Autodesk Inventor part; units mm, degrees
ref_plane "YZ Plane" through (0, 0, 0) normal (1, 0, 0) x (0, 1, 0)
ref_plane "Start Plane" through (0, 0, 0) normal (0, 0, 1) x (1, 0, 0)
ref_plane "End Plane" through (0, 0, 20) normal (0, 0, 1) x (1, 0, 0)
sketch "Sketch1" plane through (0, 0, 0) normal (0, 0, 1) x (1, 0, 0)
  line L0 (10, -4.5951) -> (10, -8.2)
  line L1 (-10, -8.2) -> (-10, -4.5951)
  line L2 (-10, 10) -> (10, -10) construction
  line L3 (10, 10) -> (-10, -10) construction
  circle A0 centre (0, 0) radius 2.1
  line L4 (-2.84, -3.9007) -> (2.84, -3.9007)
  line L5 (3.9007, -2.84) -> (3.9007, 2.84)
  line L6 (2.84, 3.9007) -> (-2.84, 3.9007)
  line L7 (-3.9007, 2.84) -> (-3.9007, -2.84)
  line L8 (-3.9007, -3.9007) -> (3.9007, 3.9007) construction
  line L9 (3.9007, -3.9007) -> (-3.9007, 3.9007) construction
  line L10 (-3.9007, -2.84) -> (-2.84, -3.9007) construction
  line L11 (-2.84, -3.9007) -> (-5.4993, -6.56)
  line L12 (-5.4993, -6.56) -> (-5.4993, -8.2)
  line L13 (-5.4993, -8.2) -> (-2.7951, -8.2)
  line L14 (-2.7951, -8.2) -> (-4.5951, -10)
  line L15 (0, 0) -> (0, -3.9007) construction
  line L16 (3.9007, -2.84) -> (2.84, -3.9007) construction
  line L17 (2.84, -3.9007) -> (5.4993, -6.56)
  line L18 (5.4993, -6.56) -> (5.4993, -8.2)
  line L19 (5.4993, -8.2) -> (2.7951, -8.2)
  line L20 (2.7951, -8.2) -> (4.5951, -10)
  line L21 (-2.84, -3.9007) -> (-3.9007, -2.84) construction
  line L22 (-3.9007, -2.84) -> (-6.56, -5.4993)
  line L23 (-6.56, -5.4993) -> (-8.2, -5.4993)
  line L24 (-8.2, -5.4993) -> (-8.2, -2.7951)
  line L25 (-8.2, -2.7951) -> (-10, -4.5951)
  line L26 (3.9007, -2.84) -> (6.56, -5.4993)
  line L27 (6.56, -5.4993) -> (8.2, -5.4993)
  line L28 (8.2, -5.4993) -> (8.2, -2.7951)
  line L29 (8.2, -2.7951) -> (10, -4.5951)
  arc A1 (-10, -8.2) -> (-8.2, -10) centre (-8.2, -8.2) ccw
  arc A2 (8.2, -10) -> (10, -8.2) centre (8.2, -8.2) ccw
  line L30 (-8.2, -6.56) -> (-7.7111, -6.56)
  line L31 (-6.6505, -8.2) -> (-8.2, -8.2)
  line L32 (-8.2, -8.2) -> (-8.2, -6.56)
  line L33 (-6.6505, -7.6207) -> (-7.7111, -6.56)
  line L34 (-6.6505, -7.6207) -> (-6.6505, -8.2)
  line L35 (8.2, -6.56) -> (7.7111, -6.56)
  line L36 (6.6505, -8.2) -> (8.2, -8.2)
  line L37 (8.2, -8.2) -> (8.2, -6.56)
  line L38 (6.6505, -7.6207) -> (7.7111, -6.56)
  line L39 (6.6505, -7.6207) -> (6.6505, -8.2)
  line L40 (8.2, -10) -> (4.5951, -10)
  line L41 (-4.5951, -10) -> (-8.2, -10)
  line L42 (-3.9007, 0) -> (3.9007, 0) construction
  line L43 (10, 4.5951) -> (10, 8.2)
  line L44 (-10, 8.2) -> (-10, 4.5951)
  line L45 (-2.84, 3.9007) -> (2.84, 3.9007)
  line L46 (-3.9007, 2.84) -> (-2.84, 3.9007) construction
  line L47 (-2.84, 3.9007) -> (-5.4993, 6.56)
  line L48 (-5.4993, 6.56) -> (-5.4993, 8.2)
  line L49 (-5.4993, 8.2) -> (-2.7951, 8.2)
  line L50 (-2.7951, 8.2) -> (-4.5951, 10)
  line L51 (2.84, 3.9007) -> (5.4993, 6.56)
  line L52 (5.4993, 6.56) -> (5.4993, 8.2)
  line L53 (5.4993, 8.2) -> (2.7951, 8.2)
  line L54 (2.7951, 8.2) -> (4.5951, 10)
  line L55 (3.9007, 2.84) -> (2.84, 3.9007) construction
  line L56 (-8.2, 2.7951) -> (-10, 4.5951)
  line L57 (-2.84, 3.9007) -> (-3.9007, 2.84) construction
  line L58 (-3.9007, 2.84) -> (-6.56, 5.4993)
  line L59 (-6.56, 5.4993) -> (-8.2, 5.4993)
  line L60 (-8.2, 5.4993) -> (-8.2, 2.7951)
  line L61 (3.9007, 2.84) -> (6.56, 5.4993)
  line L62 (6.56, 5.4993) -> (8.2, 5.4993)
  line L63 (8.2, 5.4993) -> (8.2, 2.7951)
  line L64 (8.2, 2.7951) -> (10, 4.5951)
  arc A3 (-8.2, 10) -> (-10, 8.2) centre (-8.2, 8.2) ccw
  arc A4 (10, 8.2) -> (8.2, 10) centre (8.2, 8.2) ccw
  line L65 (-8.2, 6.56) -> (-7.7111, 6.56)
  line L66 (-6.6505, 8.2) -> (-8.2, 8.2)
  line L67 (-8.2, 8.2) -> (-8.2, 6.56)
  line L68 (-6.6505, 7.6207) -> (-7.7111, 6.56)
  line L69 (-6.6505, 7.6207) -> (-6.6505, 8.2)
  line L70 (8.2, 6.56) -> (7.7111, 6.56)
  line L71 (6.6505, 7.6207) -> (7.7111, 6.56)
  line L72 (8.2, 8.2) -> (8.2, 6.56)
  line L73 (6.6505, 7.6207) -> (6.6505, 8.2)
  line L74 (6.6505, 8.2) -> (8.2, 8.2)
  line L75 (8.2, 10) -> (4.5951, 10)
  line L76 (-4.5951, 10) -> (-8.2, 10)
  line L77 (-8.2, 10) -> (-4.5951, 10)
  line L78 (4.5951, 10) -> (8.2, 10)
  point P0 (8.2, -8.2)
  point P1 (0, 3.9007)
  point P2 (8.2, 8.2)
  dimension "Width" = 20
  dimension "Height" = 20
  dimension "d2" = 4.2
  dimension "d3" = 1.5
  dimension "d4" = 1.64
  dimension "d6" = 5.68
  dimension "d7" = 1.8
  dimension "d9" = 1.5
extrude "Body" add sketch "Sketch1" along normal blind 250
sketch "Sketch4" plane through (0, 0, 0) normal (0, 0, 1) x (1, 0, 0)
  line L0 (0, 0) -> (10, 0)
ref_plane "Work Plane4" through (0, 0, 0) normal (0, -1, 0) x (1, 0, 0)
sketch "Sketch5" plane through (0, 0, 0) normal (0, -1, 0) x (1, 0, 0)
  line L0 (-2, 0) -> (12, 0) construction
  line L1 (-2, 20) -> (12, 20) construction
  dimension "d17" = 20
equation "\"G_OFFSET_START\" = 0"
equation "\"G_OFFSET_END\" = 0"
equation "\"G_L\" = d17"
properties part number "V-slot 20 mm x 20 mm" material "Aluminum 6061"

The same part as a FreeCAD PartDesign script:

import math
import FreeCAD as App
import Part
import Sketcher
from FreeCAD import Vector
Q = App.Units.Quantity

doc = App.newDocument("Part")
body = doc.addObject("PartDesign::Body", "Body")

# Sketch on XY plane
sketch1 = body.newObject("Sketcher::SketchObject", "Sketch")
sketch1.AttachmentSupport = (doc.getObject("XY_Plane"), [""])
sketch1.MapMode = "FlatFace"
sketch1.addGeometry([
    Part.LineSegment(Vector(10, -8.2, 0), Vector(10, -4.6, 0)),  # 0
    Part.LineSegment(Vector(10, -4.6, 0), Vector(8.2, -2.8, 0)),  # 1
    Part.LineSegment(Vector(8.2, -2.8, 0), Vector(8.2, -5.5, 0)),  # 2
    Part.LineSegment(Vector(8.2, -5.5, 0), Vector(6.56, -5.5, 0)),  # 3
    Part.LineSegment(Vector(6.56, -5.5, 0), Vector(3.9, -2.84, 0)),  # 4
    Part.LineSegment(Vector(3.9, -2.84, 0), Vector(3.9, 2.84, 0)),  # 5
    Part.LineSegment(Vector(3.9, 2.84, 0), Vector(6.56, 5.5, 0)),  # 6
    Part.LineSegment(Vector(6.56, 5.5, 0), Vector(8.2, 5.5, 0)),  # 7
    Part.LineSegment(Vector(8.2, 5.5, 0), Vector(8.2, 2.8, 0)),  # 8
    Part.LineSegment(Vector(8.2, 2.8, 0), Vector(10, 4.6, 0)),  # 9
    Part.LineSegment(Vector(10, 4.6, 0), Vector(10, 8.2, 0)),  # 10
    Part.ArcOfCircle(Part.Circle(Vector(8.2, 8.2, 0), Vector(0, 0, 1), 1.8), math.radians(0), math.radians(90)),  # 11
    Part.LineSegment(Vector(8.2, 10, 0), Vector(4.6, 10, 0)),  # 12
    Part.LineSegment(Vector(4.6, 10, 0), Vector(2.8, 8.2, 0)),  # 13
    Part.LineSegment(Vector(2.8, 8.2, 0), Vector(5.5, 8.2, 0)),  # 14
    Part.LineSegment(Vector(5.5, 8.2, 0), Vector(5.5, 6.56, 0)),  # 15
    Part.LineSegment(Vector(5.5, 6.56, 0), Vector(2.84, 3.9, 0)),  # 16
    Part.LineSegment(Vector(2.84, 3.9, 0), Vector(-2.84, 3.9, 0)),  # 17
    Part.LineSegment(Vector(-2.84, 3.9, 0), Vector(-5.5, 6.56, 0)),  # 18
    Part.LineSegment(Vector(-5.5, 6.56, 0), Vector(-5.5, 8.2, 0)),  # 19
    Part.LineSegment(Vector(-5.5, 8.2, 0), Vector(-2.8, 8.2, 0)),  # 20
    Part.LineSegment(Vector(-2.8, 8.2, 0), Vector(-4.6, 10, 0)),  # 21
    Part.LineSegment(Vector(-4.6, 10, 0), Vector(-8.2, 10, 0)),  # 22
    Part.ArcOfCircle(Part.Circle(Vector(-8.2, 8.2, 0), Vector(0, 0, 1), 1.8), math.radians(90), math.radians(180)),  # 23
    Part.LineSegment(Vector(-10, 8.2, 0), Vector(-10, 4.6, 0)),  # 24
    Part.LineSegment(Vector(-10, 4.6, 0), Vector(-8.2, 2.8, 0)),  # 25
    Part.LineSegment(Vector(-8.2, 2.8, 0), Vector(-8.2, 5.5, 0)),  # 26
    Part.LineSegment(Vector(-8.2, 5.5, 0), Vector(-6.56, 5.5, 0)),  # 27
    Part.LineSegment(Vector(-6.56, 5.5, 0), Vector(-3.9, 2.84, 0)),  # 28
    Part.LineSegment(Vector(-3.9, 2.84, 0), Vector(-3.9, -2.84, 0)),  # 29
    Part.LineSegment(Vector(-3.9, -2.84, 0), Vector(-6.56, -5.5, 0)),  # 30
    Part.LineSegment(Vector(-6.56, -5.5, 0), Vector(-8.2, -5.5, 0)),  # 31
    Part.LineSegment(Vector(-8.2, -5.5, 0), Vector(-8.2, -2.8, 0)),  # 32
    Part.LineSegment(Vector(-8.2, -2.8, 0), Vector(-10, -4.6, 0)),  # 33
    Part.LineSegment(Vector(-10, -4.6, 0), Vector(-10, -8.2, 0)),  # 34
    Part.ArcOfCircle(Part.Circle(Vector(-8.2, -8.2, 0), Vector(0, 0, 1), 1.8), math.radians(180), math.radians(270)),  # 35
    Part.LineSegment(Vector(-8.2, -10, 0), Vector(-4.6, -10, 0)),  # 36
    Part.LineSegment(Vector(-4.6, -10, 0), Vector(-2.8, -8.2, 0)),  # 37
    Part.LineSegment(Vector(-2.8, -8.2, 0), Vector(-5.5, -8.2, 0)),  # 38
    Part.LineSegment(Vector(-5.5, -8.2, 0), Vector(-5.5, -6.56, 0)),  # 39
    Part.LineSegment(Vector(-5.5, -6.56, 0), Vector(-2.84, -3.9, 0)),  # 40
    Part.LineSegment(Vector(-2.84, -3.9, 0), Vector(2.84, -3.9, 0)),  # 41
    Part.LineSegment(Vector(2.84, -3.9, 0), Vector(5.5, -6.56, 0)),  # 42
    Part.LineSegment(Vector(5.5, -6.56, 0), Vector(5.5, -8.2, 0)),  # 43
    Part.LineSegment(Vector(5.5, -8.2, 0), Vector(2.8, -8.2, 0)),  # 44
    Part.LineSegment(Vector(2.8, -8.2, 0), Vector(4.6, -10, 0)),  # 45
    Part.LineSegment(Vector(4.6, -10, 0), Vector(8.2, -10, 0)),  # 46
    Part.ArcOfCircle(Part.Circle(Vector(8.2, -8.2, 0), Vector(0, 0, 1), 1.8), math.radians(-90), math.radians(0)),  # 47
    Part.LineSegment(Vector(-8.2, -8.2, 0), Vector(-8.2, -6.56, 0)),  # 48
    Part.LineSegment(Vector(-8.2, -6.56, 0), Vector(-7.71, -6.56, 0)),  # 49
    Part.LineSegment(Vector(-7.71, -6.56, 0), Vector(-6.65, -7.62, 0)),  # 50
    Part.LineSegment(Vector(-6.65, -7.62, 0), Vector(-6.65, -8.2, 0)),  # 51
    Part.LineSegment(Vector(-6.65, -8.2, 0), Vector(-8.2, -8.2, 0)),  # 52
    Part.LineSegment(Vector(7.71, -6.56, 0), Vector(8.2, -6.56, 0)),  # 53
    Part.LineSegment(Vector(8.2, -6.56, 0), Vector(8.2, -8.2, 0)),  # 54
    Part.LineSegment(Vector(8.2, -8.2, 0), Vector(6.65, -8.2, 0)),  # 55
    Part.LineSegment(Vector(6.65, -8.2, 0), Vector(6.65, -7.62, 0)),  # 56
    Part.LineSegment(Vector(6.65, -7.62, 0), Vector(7.71, -6.56, 0)),  # 57
    Part.LineSegment(Vector(-7.71, 6.56, 0), Vector(-8.2, 6.56, 0)),  # 58
    Part.LineSegment(Vector(-8.2, 6.56, 0), Vector(-8.2, 8.2, 0)),  # 59
    Part.LineSegment(Vector(-8.2, 8.2, 0), Vector(-6.65, 8.2, 0)),  # 60
    Part.LineSegment(Vector(-6.65, 8.2, 0), Vector(-6.65, 7.62, 0)),  # 61
    Part.LineSegment(Vector(-6.65, 7.62, 0), Vector(-7.71, 6.56, 0)),  # 62
    Part.Circle(Vector(0, 0, 0), Vector(0, 0, 1), 2.1),  # 63
    Part.LineSegment(Vector(8.2, 8.2, 0), Vector(8.2, 6.56, 0)),  # 64
    Part.LineSegment(Vector(8.2, 6.56, 0), Vector(7.71, 6.56, 0)),  # 65
    Part.LineSegment(Vector(7.71, 6.56, 0), Vector(6.65, 7.62, 0)),  # 66
    Part.LineSegment(Vector(6.65, 7.62, 0), Vector(6.65, 8.2, 0)),  # 67
    Part.LineSegment(Vector(6.65, 8.2, 0), Vector(8.2, 8.2, 0)),  # 68
], False)
sketch1.addConstraint([
    Sketcher.Constraint("Coincident", 0, 2, 1, 1),
    Sketcher.Constraint("Coincident", 1, 2, 2, 1),
    Sketcher.Constraint("Coincident", 2, 2, 3, 1),
    Sketcher.Constraint("Coincident", 3, 2, 4, 1),
    Sketcher.Constraint("Coincident", 4, 2, 5, 1),
    Sketcher.Constraint("Coincident", 5, 2, 6, 1),
    Sketcher.Constraint("Coincident", 6, 2, 7, 1),
    Sketcher.Constraint("Coincident", 7, 2, 8, 1),
    Sketcher.Constraint("Coincident", 8, 2, 9, 1),
    Sketcher.Constraint("Coincident", 9, 2, 10, 1),
    Sketcher.Constraint("Tangent", 10, 2, 11, 1),
    Sketcher.Constraint("Tangent", 11, 2, 12, 1),
    Sketcher.Constraint("Coincident", 12, 2, 13, 1),
    Sketcher.Constraint("Coincident", 13, 2, 14, 1),
    Sketcher.Constraint("Coincident", 14, 2, 15, 1),
    Sketcher.Constraint("Coincident", 15, 2, 16, 1),
    Sketcher.Constraint("Coincident", 16, 2, 17, 1),
    Sketcher.Constraint("Coincident", 17, 2, 18, 1),
    Sketcher.Constraint("Coincident", 18, 2, 19, 1),
    Sketcher.Constraint("Coincident", 19, 2, 20, 1),
    Sketcher.Constraint("Coincident", 20, 2, 21, 1),
    Sketcher.Constraint("Coincident", 21, 2, 22, 1),
    Sketcher.Constraint("Tangent", 22, 2, 23, 1),
    Sketcher.Constraint("Tangent", 23, 2, 24, 1),
    Sketcher.Constraint("Coincident", 24, 2, 25, 1),
    Sketcher.Constraint("Coincident", 25, 2, 26, 1),
    Sketcher.Constraint("Coincident", 26, 2, 27, 1),
    Sketcher.Constraint("Coincident", 27, 2, 28, 1),
    Sketcher.Constraint("Coincident", 28, 2, 29, 1),
    Sketcher.Constraint("Coincident", 29, 2, 30, 1),
    Sketcher.Constraint("Coincident", 30, 2, 31, 1),
    Sketcher.Constraint("Coincident", 31, 2, 32, 1),
    Sketcher.Constraint("Coincident", 32, 2, 33, 1),
    Sketcher.Constraint("Coincident", 33, 2, 34, 1),
    Sketcher.Constraint("Tangent", 34, 2, 35, 1),
    Sketcher.Constraint("Tangent", 35, 2, 36, 1),
    Sketcher.Constraint("Coincident", 36, 2, 37, 1),
    Sketcher.Constraint("Coincident", 37, 2, 38, 1),
    Sketcher.Constraint("Coincident", 38, 2, 39, 1),
    Sketcher.Constraint("Coincident", 39, 2, 40, 1),
    Sketcher.Constraint("Coincident", 40, 2, 41, 1),
    Sketcher.Constraint("Coincident", 41, 2, 42, 1),
    Sketcher.Constraint("Coincident", 42, 2, 43, 1),
    Sketcher.Constraint("Coincident", 43, 2, 44, 1),
    Sketcher.Constraint("Coincident", 44, 2, 45, 1),
    Sketcher.Constraint("Coincident", 45, 2, 46, 1),
    Sketcher.Constraint("Tangent", 46, 2, 47, 1),
    Sketcher.Constraint("Tangent", 47, 2, 0, 1),
    Sketcher.Constraint("Coincident", 48, 2, 49, 1),
    Sketcher.Constraint("Coincident", 49, 2, 50, 1),
    Sketcher.Constraint("Coincident", 50, 2, 51, 1),
    Sketcher.Constraint("Coincident", 51, 2, 52, 1),
    Sketcher.Constraint("Coincident", 52, 2, 48, 1),
    Sketcher.Constraint("Coincident", 53, 2, 54, 1),
    Sketcher.Constraint("Coincident", 54, 2, 55, 1),
    Sketcher.Constraint("Coincident", 55, 2, 56, 1),
    Sketcher.Constraint("Coincident", 56, 2, 57, 1),
    Sketcher.Constraint("Coincident", 57, 2, 53, 1),
    Sketcher.Constraint("Coincident", 58, 2, 59, 1),
    Sketcher.Constraint("Coincident", 59, 2, 60, 1),
    Sketcher.Constraint("Coincident", 60, 2, 61, 1),
    Sketcher.Constraint("Coincident", 61, 2, 62, 1),
    Sketcher.Constraint("Coincident", 62, 2, 58, 1),
    Sketcher.Constraint("Coincident", 64, 2, 65, 1),
    Sketcher.Constraint("Coincident", 65, 2, 66, 1),
    Sketcher.Constraint("Coincident", 66, 2, 67, 1),
    Sketcher.Constraint("Coincident", 67, 2, 68, 1),
    Sketcher.Constraint("Coincident", 68, 2, 64, 1),
    Sketcher.Constraint("Vertical", 0),
    Sketcher.Constraint("Vertical", 2),
    Sketcher.Constraint("Horizontal", 3),
    Sketcher.Constraint("Vertical", 5),
    Sketcher.Constraint("Horizontal", 7),
    Sketcher.Constraint("Vertical", 8),
    Sketcher.Constraint("Vertical", 10),
    Sketcher.Constraint("Horizontal", 12),
    Sketcher.Constraint("Horizontal", 14),
    Sketcher.Constraint("Vertical", 15),
    Sketcher.Constraint("Horizontal", 17),
    Sketcher.Constraint("Vertical", 19),
    Sketcher.Constraint("Horizontal", 20),
    Sketcher.Constraint("Horizontal", 22),
    Sketcher.Constraint("Vertical", 24),
    Sketcher.Constraint("Vertical", 26),
    Sketcher.Constraint("Horizontal", 27),
    Sketcher.Constraint("Vertical", 29),
    Sketcher.Constraint("Horizontal", 31),
    Sketcher.Constraint("Vertical", 32),
    Sketcher.Constraint("Vertical", 34),
    Sketcher.Constraint("Horizontal", 36),
    Sketcher.Constraint("Horizontal", 38),
    Sketcher.Constraint("Vertical", 39),
    Sketcher.Constraint("Horizontal", 41),
    Sketcher.Constraint("Vertical", 43),
    Sketcher.Constraint("Horizontal", 44),
    Sketcher.Constraint("Horizontal", 46),
    Sketcher.Constraint("Vertical", 48),
    Sketcher.Constraint("Horizontal", 49),
    Sketcher.Constraint("Vertical", 51),
    Sketcher.Constraint("Horizontal", 52),
    Sketcher.Constraint("Horizontal", 53),
    Sketcher.Constraint("Vertical", 54),
    Sketcher.Constraint("Horizontal", 55),
    Sketcher.Constraint("Vertical", 56),
    Sketcher.Constraint("Horizontal", 58),
    Sketcher.Constraint("Vertical", 59),
    Sketcher.Constraint("Horizontal", 60),
    Sketcher.Constraint("Vertical", 61),
    Sketcher.Constraint("Vertical", 64),
    Sketcher.Constraint("Horizontal", 65),
    Sketcher.Constraint("Vertical", 67),
    Sketcher.Constraint("Horizontal", 68),
    Sketcher.Constraint("Coincident", 63, 3, -1, 1),
    Sketcher.Constraint("Coincident", 52, 2, 35, 3),
    Sketcher.Constraint("Coincident", 54, 2, 47, 3),
    Sketcher.Constraint("Coincident", 59, 2, 23, 3),
    Sketcher.Constraint("Coincident", 68, 2, 11, 3),
    Sketcher.Constraint("Equal", 11, 23),
    Sketcher.Constraint("Equal", 23, 35),
    Sketcher.Constraint("Equal", 35, 47),
    Sketcher.Constraint("Symmetric", 11, 3, 35, 3, -1, 1),
    Sketcher.Constraint("Symmetric", 23, 3, 47, 3, -1, 1),
    Sketcher.Constraint("Symmetric", 1, 2, 25, 2, -1, 1),
    Sketcher.Constraint("Symmetric", 3, 2, 27, 2, -1, 1),
    Sketcher.Constraint("Symmetric", 4, 2, 28, 2, -1, 1),
    Sketcher.Constraint("Symmetric", 6, 2, 30, 2, -1, 1),
    Sketcher.Constraint("Symmetric", 8, 2, 32, 2, -1, 1),
    Sketcher.Constraint("Symmetric", 13, 2, 37, 2, -1, 1),
    Sketcher.Constraint("Symmetric", 15, 2, 39, 2, -1, 1),
    Sketcher.Constraint("Symmetric", 16, 2, 40, 2, -1, 1),
    Sketcher.Constraint("Symmetric", 18, 2, 42, 2, -1, 1),
    Sketcher.Constraint("Symmetric", 20, 2, 44, 2, -1, 1),
    Sketcher.Constraint("Symmetric", 56, 2, 61, 2, -1, 1),
    Sketcher.Constraint("Symmetric", 57, 2, 62, 2, -1, 1),
    Sketcher.Constraint("Symmetric", 49, 2, 65, 2, -1, 1),
    Sketcher.Constraint("Symmetric", 50, 2, 66, 2, -1, 1),
    Sketcher.Constraint("Symmetric", 11, 3, 23, 3, -2),
    Sketcher.Constraint("Symmetric", 15, 2, 18, 2, -2),
    Sketcher.Constraint("Symmetric", 13, 2, 20, 2, -2),
    Sketcher.Constraint("Symmetric", 8, 2, 25, 2, -2),
    Sketcher.Constraint("Symmetric", 6, 2, 27, 2, -2),
    Sketcher.Constraint("Symmetric", 50, 2, 56, 2, -2),
    Sketcher.Constraint("Symmetric", 49, 2, 57, 2, -2),
    Sketcher.Constraint("Parallel", 1, 4),
    Sketcher.Constraint("Perpendicular", 4, 6),
    Sketcher.Constraint("Parallel", 6, 9),
    Sketcher.Constraint("Parallel", 9, 13),
    Sketcher.Constraint("Parallel", 13, 16),
    Sketcher.Constraint("Perpendicular", 16, 18),
    Sketcher.Constraint("Parallel", 18, 21),
    Sketcher.Constraint("Parallel", 21, 25),
    Sketcher.Constraint("Perpendicular", 28, 30),
    Sketcher.Constraint("Parallel", 30, 33),
    Sketcher.Constraint("Parallel", 33, 37),
    Sketcher.Constraint("Perpendicular", 40, 42),
    Sketcher.Constraint("Parallel", 42, 45),
    Sketcher.Constraint("Parallel", 45, 50),
    Sketcher.Constraint("Perpendicular", 50, 57),
    Sketcher.Constraint("Horizontal", 10, 2, 13, 2),
    Sketcher.Constraint("Horizontal", 42, 2, 48, 2),
    Sketcher.Constraint("Vertical", 47, 3, 1, 2),
    Sketcher.Constraint("Equal", 46, 0),
    Sketcher.Constraint("Equal", 44, 2),
    Sketcher.Constraint("Equal", 41, 5),
    Sketcher.Constraint("Equal", 31, 15),
    Sketcher.Constraint("Equal", 6, 16),
    Sketcher.Constraint("Diameter", 63, Q("4.2 mm")),
    Sketcher.Constraint("Radius", 11, Q("1.8 mm")),
    Sketcher.Constraint("Distance", 50, Q("1.5 mm")),
    Sketcher.Constraint("DistanceX", 3, 2, 3, 1, Q("1.64 mm")),
    Sketcher.Constraint("DistanceX", 17, 2, 17, 1, Q("5.68 mm")),
    Sketcher.Constraint("DistanceX", -1, 1, 0, 2, Q("10 mm")),
    Sketcher.Constraint("DistanceX", 12, 2, 12, 1, Q("3.605 mm")),
    Sketcher.Constraint("DistanceX", 49, 1, 49, 2, Q("0.489 mm")),
    Sketcher.Constraint("DistanceX", 14, 1, 14, 2, Q("2.7042 mm")),
])
pad1 = body.newObject("PartDesign::Pad", "Pad")
pad1.Profile = sketch1
pad1.Length = 250

doc.recompute()
